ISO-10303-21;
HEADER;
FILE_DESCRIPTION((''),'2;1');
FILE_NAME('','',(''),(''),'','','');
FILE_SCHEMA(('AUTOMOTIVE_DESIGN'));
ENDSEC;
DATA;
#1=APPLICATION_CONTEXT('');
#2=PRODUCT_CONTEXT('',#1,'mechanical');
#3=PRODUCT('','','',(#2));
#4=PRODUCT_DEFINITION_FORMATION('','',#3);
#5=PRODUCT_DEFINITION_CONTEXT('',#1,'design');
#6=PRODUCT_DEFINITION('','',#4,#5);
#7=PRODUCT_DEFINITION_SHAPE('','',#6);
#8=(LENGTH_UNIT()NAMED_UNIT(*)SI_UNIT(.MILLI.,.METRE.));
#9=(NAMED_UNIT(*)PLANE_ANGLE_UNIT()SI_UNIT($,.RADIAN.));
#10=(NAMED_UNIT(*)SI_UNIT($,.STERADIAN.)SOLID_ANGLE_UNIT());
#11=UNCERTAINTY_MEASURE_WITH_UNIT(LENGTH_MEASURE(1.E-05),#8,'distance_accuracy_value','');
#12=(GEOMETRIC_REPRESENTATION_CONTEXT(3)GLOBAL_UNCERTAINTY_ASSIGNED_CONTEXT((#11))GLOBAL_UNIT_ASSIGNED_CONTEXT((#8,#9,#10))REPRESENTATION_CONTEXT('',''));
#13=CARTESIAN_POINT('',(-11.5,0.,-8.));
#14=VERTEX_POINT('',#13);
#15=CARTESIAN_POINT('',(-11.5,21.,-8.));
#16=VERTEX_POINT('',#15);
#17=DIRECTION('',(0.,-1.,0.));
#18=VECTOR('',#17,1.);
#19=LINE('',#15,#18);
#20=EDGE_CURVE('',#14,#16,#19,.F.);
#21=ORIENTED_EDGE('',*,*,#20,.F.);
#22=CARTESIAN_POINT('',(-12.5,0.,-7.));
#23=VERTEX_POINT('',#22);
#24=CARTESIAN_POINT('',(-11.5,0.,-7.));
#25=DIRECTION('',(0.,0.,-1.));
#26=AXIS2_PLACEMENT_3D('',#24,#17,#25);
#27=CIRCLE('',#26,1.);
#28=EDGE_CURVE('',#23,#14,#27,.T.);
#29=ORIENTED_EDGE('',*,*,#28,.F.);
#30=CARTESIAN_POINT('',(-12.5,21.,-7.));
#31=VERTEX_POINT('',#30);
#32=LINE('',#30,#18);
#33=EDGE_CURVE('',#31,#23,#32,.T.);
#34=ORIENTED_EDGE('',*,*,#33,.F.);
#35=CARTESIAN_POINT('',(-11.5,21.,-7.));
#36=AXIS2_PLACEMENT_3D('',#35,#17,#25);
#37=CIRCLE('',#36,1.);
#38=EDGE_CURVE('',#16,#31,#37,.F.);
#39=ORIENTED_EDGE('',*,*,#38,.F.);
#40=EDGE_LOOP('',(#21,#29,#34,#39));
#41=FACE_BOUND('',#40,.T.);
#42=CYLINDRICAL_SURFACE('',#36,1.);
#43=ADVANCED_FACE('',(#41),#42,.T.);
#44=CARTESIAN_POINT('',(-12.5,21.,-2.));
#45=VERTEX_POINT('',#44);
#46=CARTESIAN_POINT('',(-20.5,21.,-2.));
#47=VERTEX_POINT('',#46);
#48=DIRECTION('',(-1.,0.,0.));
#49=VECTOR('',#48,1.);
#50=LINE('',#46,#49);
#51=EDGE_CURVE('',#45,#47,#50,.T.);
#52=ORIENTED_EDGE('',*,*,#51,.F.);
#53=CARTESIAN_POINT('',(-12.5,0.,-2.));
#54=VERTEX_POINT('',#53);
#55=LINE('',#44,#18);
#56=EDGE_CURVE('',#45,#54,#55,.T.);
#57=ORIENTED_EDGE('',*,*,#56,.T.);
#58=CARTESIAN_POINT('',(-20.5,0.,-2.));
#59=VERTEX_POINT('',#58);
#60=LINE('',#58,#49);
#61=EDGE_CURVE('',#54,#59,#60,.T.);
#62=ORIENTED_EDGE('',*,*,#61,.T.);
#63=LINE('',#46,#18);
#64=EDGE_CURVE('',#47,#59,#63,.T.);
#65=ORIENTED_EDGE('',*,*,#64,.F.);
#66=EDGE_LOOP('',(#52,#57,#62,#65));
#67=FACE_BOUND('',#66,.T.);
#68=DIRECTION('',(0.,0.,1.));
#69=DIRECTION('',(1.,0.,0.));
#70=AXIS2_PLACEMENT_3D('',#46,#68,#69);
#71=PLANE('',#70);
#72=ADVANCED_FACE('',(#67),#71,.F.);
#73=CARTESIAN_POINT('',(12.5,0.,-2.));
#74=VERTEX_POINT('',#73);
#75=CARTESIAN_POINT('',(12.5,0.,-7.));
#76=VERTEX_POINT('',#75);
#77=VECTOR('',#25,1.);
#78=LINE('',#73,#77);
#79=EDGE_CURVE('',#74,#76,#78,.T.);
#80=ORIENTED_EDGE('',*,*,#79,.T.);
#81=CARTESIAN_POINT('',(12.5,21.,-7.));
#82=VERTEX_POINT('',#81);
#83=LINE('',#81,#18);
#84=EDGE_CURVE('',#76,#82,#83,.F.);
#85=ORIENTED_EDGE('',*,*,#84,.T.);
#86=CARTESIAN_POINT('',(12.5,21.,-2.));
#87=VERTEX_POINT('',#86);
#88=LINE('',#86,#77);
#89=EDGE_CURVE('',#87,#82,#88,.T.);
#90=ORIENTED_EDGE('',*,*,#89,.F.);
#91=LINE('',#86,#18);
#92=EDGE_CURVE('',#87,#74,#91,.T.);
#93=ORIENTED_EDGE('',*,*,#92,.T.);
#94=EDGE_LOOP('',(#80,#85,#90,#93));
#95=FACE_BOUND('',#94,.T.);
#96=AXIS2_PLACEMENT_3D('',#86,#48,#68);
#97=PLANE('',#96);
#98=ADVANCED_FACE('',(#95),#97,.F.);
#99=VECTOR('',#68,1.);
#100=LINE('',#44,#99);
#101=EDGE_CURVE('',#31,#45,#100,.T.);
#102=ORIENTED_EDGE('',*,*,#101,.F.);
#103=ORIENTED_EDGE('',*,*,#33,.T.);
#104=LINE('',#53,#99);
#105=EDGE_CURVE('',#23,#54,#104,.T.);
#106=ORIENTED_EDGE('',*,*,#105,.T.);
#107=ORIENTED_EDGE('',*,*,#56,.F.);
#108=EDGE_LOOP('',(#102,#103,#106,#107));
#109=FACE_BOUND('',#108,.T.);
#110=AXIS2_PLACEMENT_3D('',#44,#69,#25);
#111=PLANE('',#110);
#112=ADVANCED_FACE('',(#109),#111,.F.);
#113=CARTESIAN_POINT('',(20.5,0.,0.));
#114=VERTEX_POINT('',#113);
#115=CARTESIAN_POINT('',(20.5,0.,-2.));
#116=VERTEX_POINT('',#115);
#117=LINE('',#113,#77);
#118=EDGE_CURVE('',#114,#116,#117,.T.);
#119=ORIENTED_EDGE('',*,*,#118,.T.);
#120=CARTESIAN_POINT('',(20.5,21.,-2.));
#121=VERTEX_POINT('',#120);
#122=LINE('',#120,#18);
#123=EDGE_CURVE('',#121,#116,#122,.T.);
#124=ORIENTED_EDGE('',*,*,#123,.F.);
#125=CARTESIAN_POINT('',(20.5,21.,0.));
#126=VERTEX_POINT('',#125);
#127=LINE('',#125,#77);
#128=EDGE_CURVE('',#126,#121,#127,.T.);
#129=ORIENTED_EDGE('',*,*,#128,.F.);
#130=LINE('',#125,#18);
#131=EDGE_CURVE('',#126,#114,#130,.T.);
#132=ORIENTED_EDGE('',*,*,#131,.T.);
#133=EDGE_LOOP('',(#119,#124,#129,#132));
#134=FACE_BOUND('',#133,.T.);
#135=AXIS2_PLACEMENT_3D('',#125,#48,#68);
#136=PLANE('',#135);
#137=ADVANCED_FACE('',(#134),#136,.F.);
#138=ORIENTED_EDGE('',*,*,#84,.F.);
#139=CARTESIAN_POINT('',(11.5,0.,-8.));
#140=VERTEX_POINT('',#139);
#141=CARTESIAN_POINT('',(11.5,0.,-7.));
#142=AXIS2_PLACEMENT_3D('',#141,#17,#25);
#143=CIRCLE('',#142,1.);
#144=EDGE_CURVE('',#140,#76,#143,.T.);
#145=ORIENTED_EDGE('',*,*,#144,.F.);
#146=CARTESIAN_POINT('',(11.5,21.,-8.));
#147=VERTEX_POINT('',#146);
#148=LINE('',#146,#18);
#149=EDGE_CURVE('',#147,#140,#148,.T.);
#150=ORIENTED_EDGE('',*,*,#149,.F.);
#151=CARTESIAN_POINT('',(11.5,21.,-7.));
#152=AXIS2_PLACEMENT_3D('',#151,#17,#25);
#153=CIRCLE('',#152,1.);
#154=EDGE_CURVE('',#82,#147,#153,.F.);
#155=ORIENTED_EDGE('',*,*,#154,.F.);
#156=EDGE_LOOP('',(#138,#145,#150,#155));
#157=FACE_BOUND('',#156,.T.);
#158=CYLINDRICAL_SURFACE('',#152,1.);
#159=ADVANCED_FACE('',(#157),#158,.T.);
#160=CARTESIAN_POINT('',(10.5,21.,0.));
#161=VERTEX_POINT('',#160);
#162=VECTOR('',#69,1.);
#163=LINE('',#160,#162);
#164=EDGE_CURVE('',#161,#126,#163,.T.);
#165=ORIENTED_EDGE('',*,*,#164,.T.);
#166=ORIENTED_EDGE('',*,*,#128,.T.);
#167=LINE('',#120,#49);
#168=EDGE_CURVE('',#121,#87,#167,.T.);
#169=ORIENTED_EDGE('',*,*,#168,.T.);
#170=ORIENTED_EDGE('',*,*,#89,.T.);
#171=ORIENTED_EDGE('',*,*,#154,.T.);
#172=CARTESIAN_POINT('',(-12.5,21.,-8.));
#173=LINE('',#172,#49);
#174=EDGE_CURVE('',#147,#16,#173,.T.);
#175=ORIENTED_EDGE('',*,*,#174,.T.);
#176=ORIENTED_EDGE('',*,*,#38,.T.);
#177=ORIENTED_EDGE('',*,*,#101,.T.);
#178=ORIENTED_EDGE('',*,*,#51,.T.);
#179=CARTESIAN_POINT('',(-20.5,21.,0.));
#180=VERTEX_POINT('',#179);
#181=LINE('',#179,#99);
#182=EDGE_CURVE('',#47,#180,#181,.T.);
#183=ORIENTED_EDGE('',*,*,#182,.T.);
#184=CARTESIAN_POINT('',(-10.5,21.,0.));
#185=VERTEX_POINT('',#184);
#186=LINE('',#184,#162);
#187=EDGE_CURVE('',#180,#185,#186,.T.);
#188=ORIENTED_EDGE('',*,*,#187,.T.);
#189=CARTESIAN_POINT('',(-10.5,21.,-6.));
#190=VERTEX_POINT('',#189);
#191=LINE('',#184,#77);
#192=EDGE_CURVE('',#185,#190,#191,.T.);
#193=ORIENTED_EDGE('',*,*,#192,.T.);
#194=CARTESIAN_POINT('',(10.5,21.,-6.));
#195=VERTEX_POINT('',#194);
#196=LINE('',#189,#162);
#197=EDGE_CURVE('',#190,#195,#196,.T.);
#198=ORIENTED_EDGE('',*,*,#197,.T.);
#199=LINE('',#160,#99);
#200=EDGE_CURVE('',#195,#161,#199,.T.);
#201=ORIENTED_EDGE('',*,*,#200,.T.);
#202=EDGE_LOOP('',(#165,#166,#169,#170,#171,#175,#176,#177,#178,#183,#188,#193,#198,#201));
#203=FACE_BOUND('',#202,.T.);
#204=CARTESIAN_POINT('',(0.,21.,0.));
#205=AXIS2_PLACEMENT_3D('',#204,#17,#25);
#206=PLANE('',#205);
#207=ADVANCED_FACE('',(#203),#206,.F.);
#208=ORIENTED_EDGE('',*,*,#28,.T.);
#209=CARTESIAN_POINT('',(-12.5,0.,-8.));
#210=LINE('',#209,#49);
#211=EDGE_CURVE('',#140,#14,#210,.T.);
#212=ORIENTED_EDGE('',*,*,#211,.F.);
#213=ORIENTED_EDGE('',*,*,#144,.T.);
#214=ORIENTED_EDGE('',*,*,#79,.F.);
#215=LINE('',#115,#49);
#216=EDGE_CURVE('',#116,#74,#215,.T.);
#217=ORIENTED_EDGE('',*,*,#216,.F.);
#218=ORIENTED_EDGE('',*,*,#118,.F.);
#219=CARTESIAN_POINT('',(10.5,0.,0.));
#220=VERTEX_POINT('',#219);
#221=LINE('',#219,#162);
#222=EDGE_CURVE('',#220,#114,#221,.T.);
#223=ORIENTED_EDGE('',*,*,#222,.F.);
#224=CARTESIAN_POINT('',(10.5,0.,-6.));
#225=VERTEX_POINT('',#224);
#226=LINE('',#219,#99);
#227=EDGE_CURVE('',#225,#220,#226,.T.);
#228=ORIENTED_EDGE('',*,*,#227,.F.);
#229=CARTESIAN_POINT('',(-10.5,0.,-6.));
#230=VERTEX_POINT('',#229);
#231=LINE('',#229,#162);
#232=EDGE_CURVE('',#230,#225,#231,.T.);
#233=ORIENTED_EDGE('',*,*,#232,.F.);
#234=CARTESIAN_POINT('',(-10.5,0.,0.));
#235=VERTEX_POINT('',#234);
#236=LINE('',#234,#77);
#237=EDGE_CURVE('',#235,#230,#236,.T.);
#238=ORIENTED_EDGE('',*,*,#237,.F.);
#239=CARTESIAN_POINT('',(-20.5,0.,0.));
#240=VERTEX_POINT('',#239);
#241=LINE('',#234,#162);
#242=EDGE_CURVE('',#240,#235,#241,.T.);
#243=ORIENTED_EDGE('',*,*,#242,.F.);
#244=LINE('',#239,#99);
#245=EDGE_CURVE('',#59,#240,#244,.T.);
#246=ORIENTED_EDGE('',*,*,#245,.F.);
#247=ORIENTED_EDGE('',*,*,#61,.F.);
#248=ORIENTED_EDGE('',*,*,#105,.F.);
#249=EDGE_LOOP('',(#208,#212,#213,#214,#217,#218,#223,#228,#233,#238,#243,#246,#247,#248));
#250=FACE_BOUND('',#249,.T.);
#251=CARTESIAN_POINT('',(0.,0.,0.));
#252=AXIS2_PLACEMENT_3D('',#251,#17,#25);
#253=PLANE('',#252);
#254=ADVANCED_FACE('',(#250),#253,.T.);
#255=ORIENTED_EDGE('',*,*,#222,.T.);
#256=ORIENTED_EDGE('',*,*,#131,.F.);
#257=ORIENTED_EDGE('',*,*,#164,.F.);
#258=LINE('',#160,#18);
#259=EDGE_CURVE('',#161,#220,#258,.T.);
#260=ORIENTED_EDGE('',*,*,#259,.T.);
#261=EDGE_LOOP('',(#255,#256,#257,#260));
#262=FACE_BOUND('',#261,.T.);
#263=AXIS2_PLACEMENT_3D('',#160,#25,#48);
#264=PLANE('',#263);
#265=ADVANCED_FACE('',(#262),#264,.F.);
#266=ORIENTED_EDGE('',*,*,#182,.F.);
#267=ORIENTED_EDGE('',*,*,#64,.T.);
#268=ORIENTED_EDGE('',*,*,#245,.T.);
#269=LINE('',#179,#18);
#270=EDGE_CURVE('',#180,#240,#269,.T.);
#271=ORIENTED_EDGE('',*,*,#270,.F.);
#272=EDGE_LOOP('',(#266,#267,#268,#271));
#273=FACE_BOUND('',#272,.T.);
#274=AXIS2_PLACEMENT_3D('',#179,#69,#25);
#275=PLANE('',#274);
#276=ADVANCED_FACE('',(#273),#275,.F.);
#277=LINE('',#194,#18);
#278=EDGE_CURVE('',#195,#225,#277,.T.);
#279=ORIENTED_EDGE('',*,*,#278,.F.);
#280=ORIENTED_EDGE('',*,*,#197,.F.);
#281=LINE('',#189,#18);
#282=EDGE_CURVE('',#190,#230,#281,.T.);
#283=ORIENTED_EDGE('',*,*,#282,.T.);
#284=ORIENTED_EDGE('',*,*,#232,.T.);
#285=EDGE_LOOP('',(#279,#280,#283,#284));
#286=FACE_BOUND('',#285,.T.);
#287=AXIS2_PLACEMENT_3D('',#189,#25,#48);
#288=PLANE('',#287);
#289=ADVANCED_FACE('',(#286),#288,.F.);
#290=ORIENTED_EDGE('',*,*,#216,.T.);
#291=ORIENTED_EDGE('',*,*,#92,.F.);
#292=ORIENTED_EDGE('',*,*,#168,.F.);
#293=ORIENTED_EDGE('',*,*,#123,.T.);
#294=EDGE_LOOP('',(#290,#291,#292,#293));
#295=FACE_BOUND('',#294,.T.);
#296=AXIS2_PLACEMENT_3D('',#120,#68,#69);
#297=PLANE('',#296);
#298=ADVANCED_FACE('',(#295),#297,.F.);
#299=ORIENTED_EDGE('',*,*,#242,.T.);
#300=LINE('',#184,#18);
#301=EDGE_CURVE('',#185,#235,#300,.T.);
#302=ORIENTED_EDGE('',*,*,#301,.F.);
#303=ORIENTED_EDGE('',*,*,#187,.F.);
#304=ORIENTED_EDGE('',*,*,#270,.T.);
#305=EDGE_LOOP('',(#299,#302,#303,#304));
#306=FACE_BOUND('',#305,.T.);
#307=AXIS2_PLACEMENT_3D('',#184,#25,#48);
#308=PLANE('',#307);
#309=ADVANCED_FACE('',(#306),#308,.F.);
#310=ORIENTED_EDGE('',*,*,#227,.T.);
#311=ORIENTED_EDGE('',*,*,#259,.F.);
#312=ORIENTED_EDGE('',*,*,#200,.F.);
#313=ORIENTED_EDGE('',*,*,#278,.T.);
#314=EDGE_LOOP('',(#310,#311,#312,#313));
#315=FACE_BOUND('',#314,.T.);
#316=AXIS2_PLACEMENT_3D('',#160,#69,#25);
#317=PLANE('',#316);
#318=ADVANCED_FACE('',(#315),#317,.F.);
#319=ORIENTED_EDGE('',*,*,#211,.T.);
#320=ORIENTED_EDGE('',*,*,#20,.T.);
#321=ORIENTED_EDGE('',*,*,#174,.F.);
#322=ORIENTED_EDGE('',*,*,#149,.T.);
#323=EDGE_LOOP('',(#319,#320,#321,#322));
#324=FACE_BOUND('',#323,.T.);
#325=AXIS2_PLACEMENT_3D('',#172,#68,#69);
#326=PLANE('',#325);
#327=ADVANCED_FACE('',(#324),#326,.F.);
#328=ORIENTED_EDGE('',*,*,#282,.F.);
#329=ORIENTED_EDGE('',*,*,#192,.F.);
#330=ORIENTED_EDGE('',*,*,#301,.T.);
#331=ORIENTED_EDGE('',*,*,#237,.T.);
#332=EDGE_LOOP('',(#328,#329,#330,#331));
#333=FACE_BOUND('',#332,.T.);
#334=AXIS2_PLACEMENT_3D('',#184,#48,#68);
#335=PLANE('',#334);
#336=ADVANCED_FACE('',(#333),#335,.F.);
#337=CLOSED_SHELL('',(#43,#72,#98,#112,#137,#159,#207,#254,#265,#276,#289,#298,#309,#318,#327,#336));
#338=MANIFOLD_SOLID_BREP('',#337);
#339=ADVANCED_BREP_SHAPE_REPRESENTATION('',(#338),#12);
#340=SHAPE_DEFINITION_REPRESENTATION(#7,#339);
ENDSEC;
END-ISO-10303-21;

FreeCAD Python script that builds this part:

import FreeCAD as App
import Part
import Sketcher

V = App.Vector
Q = App.Units.Quantity


def edges_at(feature, points):
    """Names of the edges that pass closest to the given points."""
    edges = feature.Shape.Edges
    near = lambda p: min(range(len(edges)), key=lambda i: edges[i].distToShape(Part.Vertex(*p))[0])
    return sorted({f"Edge{near(p) + 1}" for p in points})


def add_polygon(sketch, points):
    """Adds a closed chain of lines whose ends are joined by coincident constraints."""
    first, n = sketch.GeometryCount, len(points)
    for a, b in zip(points, points[1:] + points[:1]):
        sketch.addGeometry(Part.LineSegment(App.Vector(*a, 0), App.Vector(*b, 0)), False)
    for i in range(n):
        sketch.addConstraint(Sketcher.Constraint("Coincident", first + i, 2, first + (i + 1) % n, 1))

doc = App.newDocument("Part")
body = doc.addObject("PartDesign::Body", "Body")

sketch1 = body.newObject("Sketcher::SketchObject", "Sketch")
sketch1.AttachmentSupport = (doc.getObject("XZ_Plane"), [""])
sketch1.MapMode = "FlatFace"
add_polygon(sketch1, [(-20.5, 0), (-10.5, 0), (-10.5, -6), (10.5, -6), (10.5, 0), (20.5, 0), (20.5, -2), (12.5, -2), (12.5, -8), (-12.5, -8), (-12.5, -2), (-20.5, -2)])
sketch1.addConstraint([
    Sketcher.Constraint("Horizontal", 0),
    Sketcher.Constraint("Vertical", 1),
    Sketcher.Constraint("Horizontal", 2),
    Sketcher.Constraint("Vertical", 3),
    Sketcher.Constraint("Horizontal", 4),
    Sketcher.Constraint("Vertical", 5),
    Sketcher.Constraint("Horizontal", 6),
    Sketcher.Constraint("Vertical", 7),
    Sketcher.Constraint("Horizontal", 8),
    Sketcher.Constraint("Vertical", 9),
    Sketcher.Constraint("Horizontal", 10),
    Sketcher.Constraint("Vertical", 11),
    Sketcher.Constraint("Symmetric", 0, 2, 3, 2, -1, 1),
    Sketcher.Constraint("Symmetric", 6, 2, 9, 2, -2),
    Sketcher.Constraint("Symmetric", 4, 2, 11, 2, -2),
    Sketcher.Constraint("Equal", 3, 7),
    Sketcher.Constraint("DistanceX", 0, 1, 0, 2, Q("10 mm")),
    Sketcher.Constraint("DistanceX", 2, 1, 2, 2, Q("21 mm")),
    Sketcher.Constraint("DistanceX", 6, 2, 6, 1, Q("8 mm")),
    Sketcher.Constraint("DistanceY", 1, 2, 1, 1, Q("6 mm")),
    Sketcher.Constraint("DistanceY", 5, 2, 5, 1, Q("2 mm")),
])
pad1 = body.newObject("PartDesign::Pad", "Pad")
pad1.Profile = sketch1
pad1.Length = 21
pad1.Reversed = True
doc.recompute()

fillet = body.newObject("PartDesign::Fillet", "Fillet")
fillet.Base = (pad1, edges_at(pad1, [(-12.5, 10.5, -8), (12.5, 10.5, -8)]))
fillet.Radius = 1

doc.recompute()
